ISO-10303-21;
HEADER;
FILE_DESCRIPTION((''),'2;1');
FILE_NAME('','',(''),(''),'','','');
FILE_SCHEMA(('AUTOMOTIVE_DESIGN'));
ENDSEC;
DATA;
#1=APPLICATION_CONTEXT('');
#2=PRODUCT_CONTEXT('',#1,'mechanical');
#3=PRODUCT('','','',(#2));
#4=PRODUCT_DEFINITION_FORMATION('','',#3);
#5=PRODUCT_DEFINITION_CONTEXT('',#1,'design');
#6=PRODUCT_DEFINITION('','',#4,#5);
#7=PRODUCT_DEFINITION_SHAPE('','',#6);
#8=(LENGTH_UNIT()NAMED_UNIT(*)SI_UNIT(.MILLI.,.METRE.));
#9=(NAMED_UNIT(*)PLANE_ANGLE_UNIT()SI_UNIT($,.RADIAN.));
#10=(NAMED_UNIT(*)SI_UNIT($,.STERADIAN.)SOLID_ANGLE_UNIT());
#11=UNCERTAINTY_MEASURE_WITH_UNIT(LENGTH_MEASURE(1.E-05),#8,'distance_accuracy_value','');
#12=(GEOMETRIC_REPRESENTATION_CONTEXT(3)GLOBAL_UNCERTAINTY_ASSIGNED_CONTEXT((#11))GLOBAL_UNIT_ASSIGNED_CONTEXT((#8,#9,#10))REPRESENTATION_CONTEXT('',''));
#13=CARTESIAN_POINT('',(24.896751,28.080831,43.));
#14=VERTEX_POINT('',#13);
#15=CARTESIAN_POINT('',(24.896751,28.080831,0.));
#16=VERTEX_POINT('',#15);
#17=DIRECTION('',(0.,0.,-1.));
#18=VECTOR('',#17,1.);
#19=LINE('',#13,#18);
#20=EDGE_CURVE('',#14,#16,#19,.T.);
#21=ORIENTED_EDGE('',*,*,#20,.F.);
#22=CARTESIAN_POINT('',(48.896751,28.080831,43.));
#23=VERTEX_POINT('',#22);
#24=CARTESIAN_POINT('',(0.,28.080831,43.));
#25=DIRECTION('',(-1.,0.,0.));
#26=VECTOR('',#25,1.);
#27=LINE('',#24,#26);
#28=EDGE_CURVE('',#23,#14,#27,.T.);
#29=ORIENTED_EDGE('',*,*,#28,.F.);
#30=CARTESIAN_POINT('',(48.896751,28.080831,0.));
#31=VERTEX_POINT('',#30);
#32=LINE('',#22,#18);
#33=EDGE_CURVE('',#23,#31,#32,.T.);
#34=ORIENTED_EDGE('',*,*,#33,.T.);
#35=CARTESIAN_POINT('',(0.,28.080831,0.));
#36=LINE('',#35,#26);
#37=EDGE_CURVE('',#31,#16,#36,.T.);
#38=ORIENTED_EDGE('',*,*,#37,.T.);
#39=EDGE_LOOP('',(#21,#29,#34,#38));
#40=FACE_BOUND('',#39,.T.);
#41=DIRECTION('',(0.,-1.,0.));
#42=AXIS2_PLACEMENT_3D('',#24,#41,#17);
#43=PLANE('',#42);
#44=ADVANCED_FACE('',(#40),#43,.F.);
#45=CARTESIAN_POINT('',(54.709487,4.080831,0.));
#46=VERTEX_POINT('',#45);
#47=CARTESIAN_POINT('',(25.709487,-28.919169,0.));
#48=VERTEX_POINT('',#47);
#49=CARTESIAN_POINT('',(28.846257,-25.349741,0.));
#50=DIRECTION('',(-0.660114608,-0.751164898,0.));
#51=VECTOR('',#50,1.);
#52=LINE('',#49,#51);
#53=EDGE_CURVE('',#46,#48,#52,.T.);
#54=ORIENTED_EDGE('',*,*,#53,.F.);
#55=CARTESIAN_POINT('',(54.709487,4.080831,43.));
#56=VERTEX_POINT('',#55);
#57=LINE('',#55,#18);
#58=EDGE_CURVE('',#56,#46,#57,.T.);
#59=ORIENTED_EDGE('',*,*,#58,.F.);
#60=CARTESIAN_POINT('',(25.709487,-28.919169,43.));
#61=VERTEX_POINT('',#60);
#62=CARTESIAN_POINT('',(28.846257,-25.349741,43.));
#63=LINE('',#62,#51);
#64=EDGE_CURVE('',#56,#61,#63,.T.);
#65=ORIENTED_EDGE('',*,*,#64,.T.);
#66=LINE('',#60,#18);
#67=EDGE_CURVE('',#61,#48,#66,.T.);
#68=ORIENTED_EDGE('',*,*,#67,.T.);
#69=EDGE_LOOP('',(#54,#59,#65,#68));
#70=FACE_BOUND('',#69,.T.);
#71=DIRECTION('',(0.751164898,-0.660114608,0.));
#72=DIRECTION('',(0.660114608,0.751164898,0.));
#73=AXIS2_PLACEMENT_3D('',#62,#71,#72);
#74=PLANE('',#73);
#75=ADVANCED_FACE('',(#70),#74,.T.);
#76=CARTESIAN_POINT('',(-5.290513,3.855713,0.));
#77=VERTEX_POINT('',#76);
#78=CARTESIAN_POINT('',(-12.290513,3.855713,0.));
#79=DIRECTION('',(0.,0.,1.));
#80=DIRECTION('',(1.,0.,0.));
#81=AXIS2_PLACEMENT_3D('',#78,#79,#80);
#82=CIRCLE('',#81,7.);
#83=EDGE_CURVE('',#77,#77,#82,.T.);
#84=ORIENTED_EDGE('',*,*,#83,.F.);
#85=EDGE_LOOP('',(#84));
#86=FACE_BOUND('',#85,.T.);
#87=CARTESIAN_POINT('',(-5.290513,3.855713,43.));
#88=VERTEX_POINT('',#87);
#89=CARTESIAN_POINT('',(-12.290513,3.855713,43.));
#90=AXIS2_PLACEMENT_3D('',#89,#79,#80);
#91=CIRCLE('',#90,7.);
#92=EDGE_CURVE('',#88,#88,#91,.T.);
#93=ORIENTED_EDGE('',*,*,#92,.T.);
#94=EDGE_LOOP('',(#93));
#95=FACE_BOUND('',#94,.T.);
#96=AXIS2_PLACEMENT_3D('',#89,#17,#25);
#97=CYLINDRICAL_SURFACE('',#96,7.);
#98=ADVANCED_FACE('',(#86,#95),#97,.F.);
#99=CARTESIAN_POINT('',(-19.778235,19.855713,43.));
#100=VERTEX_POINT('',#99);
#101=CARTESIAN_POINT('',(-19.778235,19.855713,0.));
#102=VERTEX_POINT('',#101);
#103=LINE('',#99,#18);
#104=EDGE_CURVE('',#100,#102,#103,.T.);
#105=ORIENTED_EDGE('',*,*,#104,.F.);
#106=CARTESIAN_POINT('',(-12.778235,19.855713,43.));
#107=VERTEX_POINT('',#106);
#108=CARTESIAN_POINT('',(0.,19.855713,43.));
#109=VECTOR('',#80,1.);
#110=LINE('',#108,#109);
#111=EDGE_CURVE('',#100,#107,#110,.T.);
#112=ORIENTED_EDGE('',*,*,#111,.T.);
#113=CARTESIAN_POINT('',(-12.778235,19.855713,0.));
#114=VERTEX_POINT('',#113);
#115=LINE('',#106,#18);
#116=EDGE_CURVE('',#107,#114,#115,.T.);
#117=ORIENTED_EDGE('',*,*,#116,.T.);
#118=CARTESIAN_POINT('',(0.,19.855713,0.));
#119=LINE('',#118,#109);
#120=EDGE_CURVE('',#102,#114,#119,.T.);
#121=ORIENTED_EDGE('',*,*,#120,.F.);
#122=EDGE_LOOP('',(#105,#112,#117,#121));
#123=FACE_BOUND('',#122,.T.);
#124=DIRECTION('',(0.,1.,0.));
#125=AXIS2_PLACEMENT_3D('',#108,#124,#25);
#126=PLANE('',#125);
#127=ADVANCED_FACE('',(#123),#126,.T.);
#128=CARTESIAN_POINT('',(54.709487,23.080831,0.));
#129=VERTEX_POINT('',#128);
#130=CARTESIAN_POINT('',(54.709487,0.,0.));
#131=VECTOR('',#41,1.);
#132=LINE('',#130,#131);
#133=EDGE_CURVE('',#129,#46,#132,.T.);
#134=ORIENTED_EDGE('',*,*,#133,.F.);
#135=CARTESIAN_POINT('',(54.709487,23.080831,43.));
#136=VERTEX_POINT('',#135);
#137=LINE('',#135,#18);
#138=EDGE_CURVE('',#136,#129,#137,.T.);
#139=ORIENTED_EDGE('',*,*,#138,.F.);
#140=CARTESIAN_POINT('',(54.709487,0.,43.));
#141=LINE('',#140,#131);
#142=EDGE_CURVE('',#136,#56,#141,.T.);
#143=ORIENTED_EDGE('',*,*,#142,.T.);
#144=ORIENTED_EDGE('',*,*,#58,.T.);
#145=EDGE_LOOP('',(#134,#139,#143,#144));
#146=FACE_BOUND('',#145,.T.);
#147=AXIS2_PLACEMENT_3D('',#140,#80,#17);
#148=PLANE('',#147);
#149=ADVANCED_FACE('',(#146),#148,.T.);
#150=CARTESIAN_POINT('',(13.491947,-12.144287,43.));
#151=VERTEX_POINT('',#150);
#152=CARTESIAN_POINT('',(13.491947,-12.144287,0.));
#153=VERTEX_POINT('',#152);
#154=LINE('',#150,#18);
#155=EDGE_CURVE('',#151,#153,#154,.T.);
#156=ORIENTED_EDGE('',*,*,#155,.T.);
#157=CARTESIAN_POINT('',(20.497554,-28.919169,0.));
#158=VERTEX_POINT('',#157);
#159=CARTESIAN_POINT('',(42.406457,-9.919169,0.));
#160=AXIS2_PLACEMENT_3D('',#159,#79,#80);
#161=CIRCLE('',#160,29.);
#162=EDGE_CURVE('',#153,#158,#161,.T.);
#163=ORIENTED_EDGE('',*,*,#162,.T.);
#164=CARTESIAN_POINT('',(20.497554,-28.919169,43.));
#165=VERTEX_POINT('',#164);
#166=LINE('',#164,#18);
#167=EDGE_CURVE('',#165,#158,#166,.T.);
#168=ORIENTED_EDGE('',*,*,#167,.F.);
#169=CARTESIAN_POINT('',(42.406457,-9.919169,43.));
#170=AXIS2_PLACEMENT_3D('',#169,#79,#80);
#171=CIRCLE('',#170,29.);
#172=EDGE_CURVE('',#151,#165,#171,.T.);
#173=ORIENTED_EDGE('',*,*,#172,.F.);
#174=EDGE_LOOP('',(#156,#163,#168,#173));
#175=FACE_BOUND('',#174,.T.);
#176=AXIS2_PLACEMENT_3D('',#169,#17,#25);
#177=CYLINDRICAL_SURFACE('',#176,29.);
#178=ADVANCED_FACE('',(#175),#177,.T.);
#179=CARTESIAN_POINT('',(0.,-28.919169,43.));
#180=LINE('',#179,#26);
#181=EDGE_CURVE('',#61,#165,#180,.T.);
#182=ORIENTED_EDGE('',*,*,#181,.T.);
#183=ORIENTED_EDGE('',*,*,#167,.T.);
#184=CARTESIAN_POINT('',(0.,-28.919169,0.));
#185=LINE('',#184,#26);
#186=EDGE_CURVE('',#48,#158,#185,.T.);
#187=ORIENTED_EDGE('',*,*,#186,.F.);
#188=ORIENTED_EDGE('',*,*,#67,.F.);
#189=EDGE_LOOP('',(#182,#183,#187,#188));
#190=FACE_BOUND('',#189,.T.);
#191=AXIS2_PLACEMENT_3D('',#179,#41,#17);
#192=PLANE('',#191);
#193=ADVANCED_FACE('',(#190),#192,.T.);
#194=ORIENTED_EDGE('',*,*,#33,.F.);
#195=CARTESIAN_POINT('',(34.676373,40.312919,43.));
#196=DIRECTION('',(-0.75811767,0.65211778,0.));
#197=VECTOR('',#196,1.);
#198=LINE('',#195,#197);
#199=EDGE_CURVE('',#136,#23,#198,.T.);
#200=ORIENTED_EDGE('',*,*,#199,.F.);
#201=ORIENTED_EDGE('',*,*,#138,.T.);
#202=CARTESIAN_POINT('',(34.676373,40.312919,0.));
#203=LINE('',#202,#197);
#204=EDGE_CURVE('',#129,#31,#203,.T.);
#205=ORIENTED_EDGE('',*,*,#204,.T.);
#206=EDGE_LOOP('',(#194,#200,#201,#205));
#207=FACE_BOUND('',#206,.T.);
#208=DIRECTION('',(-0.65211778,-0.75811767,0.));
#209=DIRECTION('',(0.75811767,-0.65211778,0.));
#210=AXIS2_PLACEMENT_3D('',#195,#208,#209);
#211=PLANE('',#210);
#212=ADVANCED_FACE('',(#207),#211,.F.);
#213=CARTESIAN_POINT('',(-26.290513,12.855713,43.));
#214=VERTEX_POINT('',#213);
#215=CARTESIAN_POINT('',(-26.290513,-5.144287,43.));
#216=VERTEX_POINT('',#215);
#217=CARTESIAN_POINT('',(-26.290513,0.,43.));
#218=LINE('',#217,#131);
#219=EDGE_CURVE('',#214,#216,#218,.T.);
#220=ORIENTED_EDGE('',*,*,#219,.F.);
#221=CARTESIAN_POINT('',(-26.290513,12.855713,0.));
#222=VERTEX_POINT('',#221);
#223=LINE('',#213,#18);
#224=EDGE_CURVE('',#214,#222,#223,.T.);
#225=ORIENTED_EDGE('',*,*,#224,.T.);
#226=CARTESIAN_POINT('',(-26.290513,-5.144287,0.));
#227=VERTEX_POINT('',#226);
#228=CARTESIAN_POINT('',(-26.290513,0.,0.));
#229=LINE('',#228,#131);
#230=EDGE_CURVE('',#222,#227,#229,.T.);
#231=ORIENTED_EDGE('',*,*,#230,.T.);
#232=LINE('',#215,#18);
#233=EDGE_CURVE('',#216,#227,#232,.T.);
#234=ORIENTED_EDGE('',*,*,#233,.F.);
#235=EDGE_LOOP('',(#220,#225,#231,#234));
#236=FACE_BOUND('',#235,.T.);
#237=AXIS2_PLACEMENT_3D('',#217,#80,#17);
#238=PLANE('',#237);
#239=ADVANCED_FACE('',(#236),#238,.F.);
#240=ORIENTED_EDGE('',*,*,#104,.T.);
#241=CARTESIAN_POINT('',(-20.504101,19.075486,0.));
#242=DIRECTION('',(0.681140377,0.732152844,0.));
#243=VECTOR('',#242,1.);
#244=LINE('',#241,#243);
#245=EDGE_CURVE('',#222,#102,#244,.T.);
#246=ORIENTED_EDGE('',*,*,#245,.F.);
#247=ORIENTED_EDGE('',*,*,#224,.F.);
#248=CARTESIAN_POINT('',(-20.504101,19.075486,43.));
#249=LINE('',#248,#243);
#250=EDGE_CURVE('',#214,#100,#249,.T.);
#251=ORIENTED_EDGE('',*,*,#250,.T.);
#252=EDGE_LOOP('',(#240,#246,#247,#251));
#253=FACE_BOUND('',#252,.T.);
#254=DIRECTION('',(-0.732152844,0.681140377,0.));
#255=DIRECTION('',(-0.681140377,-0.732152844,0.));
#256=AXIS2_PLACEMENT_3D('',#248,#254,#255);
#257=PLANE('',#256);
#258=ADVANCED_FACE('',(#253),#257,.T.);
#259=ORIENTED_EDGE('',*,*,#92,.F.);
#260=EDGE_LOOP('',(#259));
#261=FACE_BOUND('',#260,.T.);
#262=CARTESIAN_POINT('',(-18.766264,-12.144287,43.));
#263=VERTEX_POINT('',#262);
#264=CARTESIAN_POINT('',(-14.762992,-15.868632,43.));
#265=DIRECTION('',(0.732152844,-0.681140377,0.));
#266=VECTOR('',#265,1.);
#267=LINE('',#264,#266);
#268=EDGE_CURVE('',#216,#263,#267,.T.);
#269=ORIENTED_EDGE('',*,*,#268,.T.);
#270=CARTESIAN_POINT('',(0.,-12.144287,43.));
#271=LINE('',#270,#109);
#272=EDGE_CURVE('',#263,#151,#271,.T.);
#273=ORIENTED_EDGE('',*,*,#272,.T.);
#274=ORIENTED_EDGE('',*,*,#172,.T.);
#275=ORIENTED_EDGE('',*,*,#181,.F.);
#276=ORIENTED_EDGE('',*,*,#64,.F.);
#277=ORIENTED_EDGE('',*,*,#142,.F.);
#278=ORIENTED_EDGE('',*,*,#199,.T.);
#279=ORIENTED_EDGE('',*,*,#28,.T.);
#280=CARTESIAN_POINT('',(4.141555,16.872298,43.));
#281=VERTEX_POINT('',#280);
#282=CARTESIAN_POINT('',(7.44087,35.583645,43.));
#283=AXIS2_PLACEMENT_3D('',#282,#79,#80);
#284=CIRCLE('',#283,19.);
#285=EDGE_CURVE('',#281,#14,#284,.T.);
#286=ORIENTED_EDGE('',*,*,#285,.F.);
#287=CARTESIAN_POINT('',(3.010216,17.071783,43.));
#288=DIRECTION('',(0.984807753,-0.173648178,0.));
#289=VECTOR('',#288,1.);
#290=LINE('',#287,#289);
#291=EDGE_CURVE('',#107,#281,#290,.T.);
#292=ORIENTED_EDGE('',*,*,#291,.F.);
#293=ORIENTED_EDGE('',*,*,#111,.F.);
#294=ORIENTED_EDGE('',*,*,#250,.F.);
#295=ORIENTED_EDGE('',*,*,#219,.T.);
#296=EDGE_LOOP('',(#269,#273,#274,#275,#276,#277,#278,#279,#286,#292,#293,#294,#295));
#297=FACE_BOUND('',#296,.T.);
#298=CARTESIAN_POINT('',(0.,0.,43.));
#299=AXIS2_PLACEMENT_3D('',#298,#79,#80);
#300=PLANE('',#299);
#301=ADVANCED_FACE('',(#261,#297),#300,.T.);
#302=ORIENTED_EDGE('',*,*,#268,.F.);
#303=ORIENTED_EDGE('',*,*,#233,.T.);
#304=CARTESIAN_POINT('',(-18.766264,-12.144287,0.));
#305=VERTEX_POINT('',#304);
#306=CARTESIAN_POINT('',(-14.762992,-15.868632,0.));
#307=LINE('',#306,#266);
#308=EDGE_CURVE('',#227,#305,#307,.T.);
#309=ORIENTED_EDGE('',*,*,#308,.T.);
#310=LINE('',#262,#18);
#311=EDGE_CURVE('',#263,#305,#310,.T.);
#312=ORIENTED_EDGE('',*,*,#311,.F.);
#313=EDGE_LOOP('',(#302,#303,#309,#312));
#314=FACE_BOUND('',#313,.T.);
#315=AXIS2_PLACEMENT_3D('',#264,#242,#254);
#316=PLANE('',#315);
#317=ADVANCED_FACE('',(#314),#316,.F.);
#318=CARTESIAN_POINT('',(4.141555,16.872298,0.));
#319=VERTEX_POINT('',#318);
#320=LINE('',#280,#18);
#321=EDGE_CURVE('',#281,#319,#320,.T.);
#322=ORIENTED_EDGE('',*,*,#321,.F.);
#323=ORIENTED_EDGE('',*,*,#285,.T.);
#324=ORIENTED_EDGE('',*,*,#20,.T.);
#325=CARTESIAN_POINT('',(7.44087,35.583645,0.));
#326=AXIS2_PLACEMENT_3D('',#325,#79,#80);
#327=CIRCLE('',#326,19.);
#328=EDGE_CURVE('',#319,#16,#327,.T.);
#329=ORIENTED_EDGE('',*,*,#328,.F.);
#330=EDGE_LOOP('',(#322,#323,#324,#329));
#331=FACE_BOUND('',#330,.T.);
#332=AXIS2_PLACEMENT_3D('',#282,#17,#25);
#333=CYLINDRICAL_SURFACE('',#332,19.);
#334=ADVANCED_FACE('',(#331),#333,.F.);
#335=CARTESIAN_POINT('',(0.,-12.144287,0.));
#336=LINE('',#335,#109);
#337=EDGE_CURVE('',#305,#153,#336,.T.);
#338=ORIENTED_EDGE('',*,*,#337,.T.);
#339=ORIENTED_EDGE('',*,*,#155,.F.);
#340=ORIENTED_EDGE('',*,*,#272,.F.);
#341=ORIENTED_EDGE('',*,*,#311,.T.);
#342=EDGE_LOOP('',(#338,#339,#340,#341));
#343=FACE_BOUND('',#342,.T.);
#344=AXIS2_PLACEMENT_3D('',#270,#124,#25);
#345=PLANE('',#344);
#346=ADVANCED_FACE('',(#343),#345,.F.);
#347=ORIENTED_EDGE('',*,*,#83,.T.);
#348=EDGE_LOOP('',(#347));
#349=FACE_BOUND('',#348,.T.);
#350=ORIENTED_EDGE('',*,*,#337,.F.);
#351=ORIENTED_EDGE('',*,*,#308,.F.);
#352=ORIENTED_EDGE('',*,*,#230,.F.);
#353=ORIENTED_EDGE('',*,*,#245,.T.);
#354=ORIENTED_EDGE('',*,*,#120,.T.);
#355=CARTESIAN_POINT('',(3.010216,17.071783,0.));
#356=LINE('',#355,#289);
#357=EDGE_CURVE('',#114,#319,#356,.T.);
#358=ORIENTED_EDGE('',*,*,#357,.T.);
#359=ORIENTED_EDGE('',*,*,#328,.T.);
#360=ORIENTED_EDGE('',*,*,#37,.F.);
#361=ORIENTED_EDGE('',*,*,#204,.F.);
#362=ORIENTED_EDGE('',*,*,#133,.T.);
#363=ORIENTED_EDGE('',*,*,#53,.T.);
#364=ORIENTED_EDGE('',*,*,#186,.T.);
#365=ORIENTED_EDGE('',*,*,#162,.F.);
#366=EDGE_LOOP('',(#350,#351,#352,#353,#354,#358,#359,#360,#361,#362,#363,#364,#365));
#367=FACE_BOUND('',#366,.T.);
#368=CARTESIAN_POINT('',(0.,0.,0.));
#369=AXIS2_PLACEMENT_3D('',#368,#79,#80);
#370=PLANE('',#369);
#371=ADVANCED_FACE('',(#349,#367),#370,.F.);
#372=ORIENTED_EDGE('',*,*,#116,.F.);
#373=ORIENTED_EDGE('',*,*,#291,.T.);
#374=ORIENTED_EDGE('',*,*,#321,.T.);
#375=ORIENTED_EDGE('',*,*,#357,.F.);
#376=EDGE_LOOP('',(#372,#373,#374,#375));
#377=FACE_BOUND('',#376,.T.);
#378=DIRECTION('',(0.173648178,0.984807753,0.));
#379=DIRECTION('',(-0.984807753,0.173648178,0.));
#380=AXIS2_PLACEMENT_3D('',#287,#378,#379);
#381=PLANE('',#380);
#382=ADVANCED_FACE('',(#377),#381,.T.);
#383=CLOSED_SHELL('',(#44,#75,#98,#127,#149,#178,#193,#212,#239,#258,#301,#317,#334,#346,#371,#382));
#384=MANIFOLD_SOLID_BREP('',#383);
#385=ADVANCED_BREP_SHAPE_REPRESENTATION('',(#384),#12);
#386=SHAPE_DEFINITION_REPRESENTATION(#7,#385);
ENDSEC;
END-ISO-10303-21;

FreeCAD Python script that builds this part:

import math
import FreeCAD as App
import Part
import Sketcher

V = App.Vector
Q = App.Units.Quantity

doc = App.newDocument("Part")
params = doc.addObject("Spreadsheet::Sheet", "Params")
for row, (alias, value) in enumerate([
    ("sketch1_diameter", "14 mm"),
    ("sketch1_radius", "29 mm"),
    ("sketch1_radius2", "19 mm"),
    ("sketch1_width", "24 mm"),
    ("sketch1_width2", "7 mm"),
    ("pad1_length", "43 mm"),
], start=1):
    params.set(f"A{row}", alias)
    params.set(f"B{row}", "=" + value)
    params.setAlias(f"B{row}", alias)

body = doc.addObject("PartDesign::Body", "Body")

# Sketch on XY plane
sketch1 = doc.addObject("Sketcher::SketchObject", "Sketch")
body.addObject(sketch1)
sketch1.AttachmentSupport = (doc.XY_Plane, [""])
sketch1.MapMode = "FlatFace"
sketch1.addGeometry([
    Part.LineSegment(V(-18.766264, -12.144287, 0), V(13.491947, -12.144287, 0)),  # 0
    Part.ArcOfCircle(Part.Circle(V(42.406457, -9.919169, 0), V(0, 0, 1), 29), math.radians(-175.599473), math.radians(-139.067275)),  # 1
    Part.LineSegment(V(20.497554, -28.919169, 0), V(25.709487, -28.919169, 0)),  # 2
    Part.LineSegment(V(25.709487, -28.919169, 0), V(54.709487, 4.080831, 0)),  # 3
    Part.LineSegment(V(54.709487, 4.080831, 0), V(54.709487, 23.080831, 0)),  # 4
    Part.LineSegment(V(54.709487, 23.080831, 0), V(48.896751, 28.080831, 0)),  # 5
    Part.LineSegment(V(48.896751, 28.080831, 0), V(24.896751, 28.080831, 0)),  # 6
    Part.ArcOfCircle(Part.Circle(V(7.44087, 35.583645, 0), V(0, 0, 1), 19), math.radians(-100), math.radians(-23.258798)),  # 7
    Part.LineSegment(V(4.141555, 16.872298, 0), V(-12.778235, 19.855713, 0)),  # 8
    Part.LineSegment(V(-12.778235, 19.855713, 0), V(-19.778235, 19.855713, 0)),  # 9
    Part.LineSegment(V(-19.778235, 19.855713, 0), V(-26.290513, 12.855713, 0)),  # 10
    Part.LineSegment(V(-26.290513, 12.855713, 0), V(-26.290513, -5.144287, 0)),  # 11
    Part.LineSegment(V(-26.290513, -5.144287, 0), V(-18.766264, -12.144287, 0)),  # 12
    Part.Circle(V(-12.290513, 3.855713, 0), V(0, 0, 1), 7),  # 13
], False)
sketch1.addConstraint([
    Sketcher.Constraint("Coincident", 0, 2, 1, 1),
    Sketcher.Constraint("Coincident", 1, 2, 2, 1),
    Sketcher.Constraint("Coincident", 2, 2, 3, 1),
    Sketcher.Constraint("Coincident", 3, 2, 4, 1),
    Sketcher.Constraint("Coincident", 4, 2, 5, 1),
    Sketcher.Constraint("Coincident", 5, 2, 6, 1),
    Sketcher.Constraint("Coincident", 6, 2, 7, 2),
    Sketcher.Constraint("Tangent", 7, 1, 8, 1),
    Sketcher.Constraint("Coincident", 8, 2, 9, 1),
    Sketcher.Constraint("Coincident", 9, 2, 10, 1),
    Sketcher.Constraint("Coincident", 10, 2, 11, 1),
    Sketcher.Constraint("Coincident", 11, 2, 12, 1),
    Sketcher.Constraint("Coincident", 12, 2, 0, 1),
    Sketcher.Constraint("Horizontal", 0),
    Sketcher.Constraint("Horizontal", 2),
    Sketcher.Constraint("Vertical", 4),
    Sketcher.Constraint("Horizontal", 6),
    Sketcher.Constraint("Horizontal", 9),
    Sketcher.Constraint("Vertical", 11),
    Sketcher.Constraint("Perpendicular", 10, 12),
    Sketcher.Constraint("Diameter", 13, 14.0),
    Sketcher.Constraint("Radius", 1, 29.0),
    Sketcher.Constraint("Radius", 7, 19.0),
    Sketcher.Constraint("DistanceX", 6, 2, 6, 1, 24.0),
    Sketcher.Constraint("DistanceX", 9, 2, 9, 1, 7.0),
    Sketcher.Constraint("DistanceY", 4, 1, 4, 2, 19.0),
    Sketcher.Constraint("DistanceY", 11, 2, 11, 1, 18.0),
    Sketcher.Constraint("Angle", 8, Q("170 deg")),
    Sketcher.Constraint("DistanceY", 0, 2, 13, 3, 16.0),
    Sketcher.Constraint("DistanceY", 1, 2, 1, 3, 19.0),
    Sketcher.Constraint("DistanceX", 13, 3, 2, 2, 38.0),
    Sketcher.Constraint("DistanceY", 1, 3, 3, 2, 14.0),
    Sketcher.Constraint("DistanceX", 2, 2, 3, 2, 29.0),
    Sketcher.Constraint("DistanceY", 4, 2, 5, 2, 5.0),
    Sketcher.Constraint("DistanceY", 13, 3, 8, 2, 16.0),
    Sketcher.Constraint("DistanceY", 10, 2, 9, 2, 7.0),
    Sketcher.Constraint("DistanceX", 10, 2, 13, 3, 14.0),
    Sketcher.Constraint("DistanceX", 0, 1, 0, 2, 32.258211),
    Sketcher.Constraint("DistanceX", 2, 1, 2, 2, 5.211933),
    Sketcher.Constraint("DistanceY", 1, 3, -1, 1, 9.919169),
    Sketcher.Constraint("DistanceX", -1, 1, 7, 3, 7.44087),
    Sketcher.Constraint("DistanceX", -1, 1, 5, 2, 48.896751),
    Sketcher.Constraint("DistanceY", 13, 3, 7, 3, 31.727932),
])
sketch1.setExpression("Constraints[20]", "Params.sketch1_diameter")
sketch1.setExpression("Constraints[21]", "Params.sketch1_radius")
sketch1.setExpression("Constraints[22]", "Params.sketch1_radius2")
sketch1.setExpression("Constraints[23]", "Params.sketch1_width")
sketch1.setExpression("Constraints[24]", "Params.sketch1_width2")
pad1 = doc.addObject("PartDesign::Pad", "Pad")
body.addObject(pad1)
pad1.Profile = sketch1
pad1.setExpression("Length", "Params.pad1_length")

doc.recompute()
